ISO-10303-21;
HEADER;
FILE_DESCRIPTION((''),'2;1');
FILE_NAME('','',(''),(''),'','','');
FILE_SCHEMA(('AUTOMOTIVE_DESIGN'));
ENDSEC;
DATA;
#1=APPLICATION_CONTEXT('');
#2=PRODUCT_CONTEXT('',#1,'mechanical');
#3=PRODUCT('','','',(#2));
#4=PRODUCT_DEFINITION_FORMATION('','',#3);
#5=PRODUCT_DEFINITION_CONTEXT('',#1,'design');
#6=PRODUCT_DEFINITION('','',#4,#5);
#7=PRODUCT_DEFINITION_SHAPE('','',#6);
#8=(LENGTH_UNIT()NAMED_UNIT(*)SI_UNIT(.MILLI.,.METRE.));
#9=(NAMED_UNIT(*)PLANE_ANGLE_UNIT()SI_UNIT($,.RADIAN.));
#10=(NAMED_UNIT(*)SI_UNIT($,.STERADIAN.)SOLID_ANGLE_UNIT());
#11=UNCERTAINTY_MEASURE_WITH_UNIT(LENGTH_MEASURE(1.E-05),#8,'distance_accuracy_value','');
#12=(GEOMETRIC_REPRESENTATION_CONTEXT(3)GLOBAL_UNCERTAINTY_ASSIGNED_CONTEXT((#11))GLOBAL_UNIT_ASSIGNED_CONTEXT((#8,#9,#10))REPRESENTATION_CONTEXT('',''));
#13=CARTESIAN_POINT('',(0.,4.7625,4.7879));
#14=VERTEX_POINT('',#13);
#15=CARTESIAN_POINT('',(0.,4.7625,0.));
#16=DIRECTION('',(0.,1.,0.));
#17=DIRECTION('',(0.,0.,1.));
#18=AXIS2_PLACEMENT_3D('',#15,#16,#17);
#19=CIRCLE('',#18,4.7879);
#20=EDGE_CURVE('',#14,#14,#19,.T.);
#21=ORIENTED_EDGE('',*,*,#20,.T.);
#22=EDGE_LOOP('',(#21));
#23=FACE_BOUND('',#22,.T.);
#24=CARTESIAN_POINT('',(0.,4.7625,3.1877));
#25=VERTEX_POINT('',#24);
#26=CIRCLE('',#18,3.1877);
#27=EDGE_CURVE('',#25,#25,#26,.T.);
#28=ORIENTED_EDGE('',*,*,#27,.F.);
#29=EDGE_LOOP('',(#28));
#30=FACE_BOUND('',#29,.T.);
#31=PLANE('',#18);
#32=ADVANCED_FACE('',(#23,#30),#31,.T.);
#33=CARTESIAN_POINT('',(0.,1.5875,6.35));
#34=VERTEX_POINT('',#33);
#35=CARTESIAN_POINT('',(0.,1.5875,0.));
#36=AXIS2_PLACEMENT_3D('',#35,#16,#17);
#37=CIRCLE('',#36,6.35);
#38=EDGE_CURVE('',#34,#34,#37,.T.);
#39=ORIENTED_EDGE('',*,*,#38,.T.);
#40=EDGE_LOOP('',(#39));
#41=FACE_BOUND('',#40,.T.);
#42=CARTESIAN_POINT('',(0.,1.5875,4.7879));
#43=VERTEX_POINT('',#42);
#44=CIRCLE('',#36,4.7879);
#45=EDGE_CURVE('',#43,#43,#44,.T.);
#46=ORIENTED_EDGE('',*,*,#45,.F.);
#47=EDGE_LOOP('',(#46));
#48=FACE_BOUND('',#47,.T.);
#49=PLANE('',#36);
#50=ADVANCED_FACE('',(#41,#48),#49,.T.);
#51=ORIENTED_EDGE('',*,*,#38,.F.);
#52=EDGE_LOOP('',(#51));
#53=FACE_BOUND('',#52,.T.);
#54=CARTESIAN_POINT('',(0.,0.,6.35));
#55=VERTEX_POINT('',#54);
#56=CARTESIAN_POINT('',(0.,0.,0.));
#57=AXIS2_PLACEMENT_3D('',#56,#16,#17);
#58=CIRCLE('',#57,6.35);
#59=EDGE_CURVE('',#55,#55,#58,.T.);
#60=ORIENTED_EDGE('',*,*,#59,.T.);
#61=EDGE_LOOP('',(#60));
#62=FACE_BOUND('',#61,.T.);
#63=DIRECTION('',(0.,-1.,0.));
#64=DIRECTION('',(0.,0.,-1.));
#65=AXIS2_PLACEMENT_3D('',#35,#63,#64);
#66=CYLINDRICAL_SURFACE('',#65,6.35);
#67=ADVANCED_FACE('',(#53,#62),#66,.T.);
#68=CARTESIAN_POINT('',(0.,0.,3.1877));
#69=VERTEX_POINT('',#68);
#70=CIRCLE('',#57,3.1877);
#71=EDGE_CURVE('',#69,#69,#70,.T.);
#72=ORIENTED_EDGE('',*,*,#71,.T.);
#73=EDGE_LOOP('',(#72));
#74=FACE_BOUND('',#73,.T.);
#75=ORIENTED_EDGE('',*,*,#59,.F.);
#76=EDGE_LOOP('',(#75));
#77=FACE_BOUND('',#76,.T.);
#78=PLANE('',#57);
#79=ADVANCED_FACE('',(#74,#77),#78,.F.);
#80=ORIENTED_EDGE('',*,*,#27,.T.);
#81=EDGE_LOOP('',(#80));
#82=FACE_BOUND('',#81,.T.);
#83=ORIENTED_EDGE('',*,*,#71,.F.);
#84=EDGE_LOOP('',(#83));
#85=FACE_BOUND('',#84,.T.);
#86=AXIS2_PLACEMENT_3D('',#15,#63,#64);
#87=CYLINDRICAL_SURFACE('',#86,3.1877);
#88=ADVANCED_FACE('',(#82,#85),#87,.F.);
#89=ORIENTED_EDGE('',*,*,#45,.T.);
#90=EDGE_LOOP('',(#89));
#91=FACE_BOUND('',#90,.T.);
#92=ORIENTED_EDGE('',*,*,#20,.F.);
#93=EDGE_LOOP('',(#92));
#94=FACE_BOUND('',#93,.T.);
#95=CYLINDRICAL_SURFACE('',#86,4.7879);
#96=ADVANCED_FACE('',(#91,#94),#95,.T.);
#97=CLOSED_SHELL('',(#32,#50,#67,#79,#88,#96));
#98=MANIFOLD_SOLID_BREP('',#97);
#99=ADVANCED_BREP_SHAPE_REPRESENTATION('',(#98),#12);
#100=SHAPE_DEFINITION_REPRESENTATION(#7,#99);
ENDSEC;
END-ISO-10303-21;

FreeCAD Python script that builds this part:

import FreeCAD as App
import Part
import Sketcher
Q = App.Units.Quantity

doc = App.newDocument("Part")
params = doc.addObject("Spreadsheet::Sheet", "Params")
for row, (alias, value) in enumerate([
    ("sketch1_diameter", "0.377 in"),
    ("sketch1_diameter2", "0.251 in"),
    ("pad1_length", "0.1875 in"),
    ("sketch2_diameter", "0.5 in"),
    ("sketch2_diameter2", "0.377 in"),
    ("pad2_length", "0.0625 in"),
], start=1):
    params.set(f"A{row}", alias)
    params.set(f"B{row}", "=" + value)
    params.setAlias(f"B{row}", alias)

body = doc.addObject("PartDesign::Body", "Body")

# Sketch on XZ plane
sketch1 = body.newObject("Sketcher::SketchObject", "Sketch")
sketch1.AttachmentSupport = (doc.getObject("XZ_Plane"), [""])
sketch1.MapMode = "FlatFace"
sketch1.addGeometry([
    Part.Circle(App.Vector(0, 0, 0), App.Vector(0, 0, 1), 4.7879),
    Part.Circle(App.Vector(0, 0, 0), App.Vector(0, 0, 1), 3.1877),
], False)
sketch1.addConstraint([
    Sketcher.Constraint("Coincident", 0, 3, -1, 1),
    Sketcher.Constraint("Coincident", 1, 3, -1, 1),
    Sketcher.Constraint("Diameter", 0, Q("0.377 in")),
    Sketcher.Constraint("Diameter", 1, Q("0.251 in")),
])
sketch1.setExpression("Constraints[2]", "Params.sketch1_diameter")
sketch1.setExpression("Constraints[3]", "Params.sketch1_diameter2")
pad1 = body.newObject("PartDesign::Pad", "Pad")
pad1.Profile = sketch1
pad1.setExpression("Length", "Params.pad1_length")
pad1.Reversed = True

# Sketch on XZ plane
sketch2 = body.newObject("Sketcher::SketchObject", "Sketch001")
sketch2.AttachmentSupport = (doc.getObject("XZ_Plane"), [""])
sketch2.MapMode = "FlatFace"
sketch2.addGeometry([
    Part.Circle(App.Vector(0, 0, 0), App.Vector(0, 0, 1), 6.35),
    Part.Circle(App.Vector(0, 0, 0), App.Vector(0, 0, 1), 4.7879),
], False)
sketch2.addConstraint([
    Sketcher.Constraint("Coincident", 0, 3, -1, 1),
    Sketcher.Constraint("Coincident", 1, 3, -1, 1),
    Sketcher.Constraint("Diameter", 0, Q("0.5 in")),
    Sketcher.Constraint("Diameter", 1, Q("0.377 in")),
])
sketch2.setExpression("Constraints[2]", "Params.sketch2_diameter")
sketch2.setExpression("Constraints[3]", "Params.sketch2_diameter2")
pad2 = body.newObject("PartDesign::Pad", "Pad001")
pad2.Profile = sketch2
pad2.setExpression("Length", "Params.pad2_length")
pad2.Reversed = True

doc.recompute()
